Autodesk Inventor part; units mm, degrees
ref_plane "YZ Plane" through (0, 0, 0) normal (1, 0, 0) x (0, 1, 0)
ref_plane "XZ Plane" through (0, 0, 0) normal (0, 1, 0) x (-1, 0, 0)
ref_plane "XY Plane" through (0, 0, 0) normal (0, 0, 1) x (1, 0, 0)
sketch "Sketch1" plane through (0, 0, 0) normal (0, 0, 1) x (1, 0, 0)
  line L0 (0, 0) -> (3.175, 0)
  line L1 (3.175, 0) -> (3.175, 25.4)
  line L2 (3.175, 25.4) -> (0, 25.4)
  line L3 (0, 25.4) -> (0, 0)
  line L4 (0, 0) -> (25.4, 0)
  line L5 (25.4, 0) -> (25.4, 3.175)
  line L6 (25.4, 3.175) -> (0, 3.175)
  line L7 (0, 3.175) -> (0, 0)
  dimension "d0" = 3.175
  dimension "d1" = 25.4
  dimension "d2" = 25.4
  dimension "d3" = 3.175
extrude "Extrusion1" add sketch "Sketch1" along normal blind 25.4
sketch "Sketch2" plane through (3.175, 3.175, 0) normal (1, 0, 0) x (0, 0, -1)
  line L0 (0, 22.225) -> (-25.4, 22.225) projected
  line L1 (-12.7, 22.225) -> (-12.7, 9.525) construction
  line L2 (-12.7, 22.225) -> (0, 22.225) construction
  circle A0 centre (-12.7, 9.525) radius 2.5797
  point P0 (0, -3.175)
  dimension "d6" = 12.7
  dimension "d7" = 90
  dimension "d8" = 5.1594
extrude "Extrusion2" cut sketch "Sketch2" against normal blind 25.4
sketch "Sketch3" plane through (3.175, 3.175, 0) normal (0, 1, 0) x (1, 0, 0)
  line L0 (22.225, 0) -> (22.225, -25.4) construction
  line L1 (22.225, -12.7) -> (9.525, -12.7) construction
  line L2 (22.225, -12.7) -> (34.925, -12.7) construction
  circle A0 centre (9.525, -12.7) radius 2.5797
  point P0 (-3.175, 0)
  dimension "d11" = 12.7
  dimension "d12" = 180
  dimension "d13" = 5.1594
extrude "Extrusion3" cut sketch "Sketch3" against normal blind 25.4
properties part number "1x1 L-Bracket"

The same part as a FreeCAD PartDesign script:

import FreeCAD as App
import Part
import Sketcher

V = App.Vector
Q = App.Units.Quantity


def add_polygon(sketch, points):
    """Adds a closed chain of lines whose ends are joined by coincident constraints."""
    first, n = sketch.GeometryCount, len(points)
    for a, b in zip(points, points[1:] + points[:1]):
        sketch.addGeometry(Part.LineSegment(App.Vector(*a, 0), App.Vector(*b, 0)), False)
    for i in range(n):
        sketch.addConstraint(Sketcher.Constraint("Coincident", first + i, 2, first + (i + 1) % n, 1))

doc = App.newDocument("Part")
body = doc.addObject("PartDesign::Body", "Body")

sketch1 = doc.addObject("Sketcher::SketchObject", "Sketch")
body.addObject(sketch1)
sketch1.AttachmentSupport = (doc.XY_Plane, [""])
sketch1.MapMode = "FlatFace"
add_polygon(sketch1, [(0, 0), (25.4, 0), (25.4, 3.175), (3.175, 3.175), (3.175, 25.4), (0, 25.4)])
sketch1.addConstraint([
    Sketcher.Constraint("Horizontal", 0),
    Sketcher.Constraint("Vertical", 1),
    Sketcher.Constraint("Horizontal", 2),
    Sketcher.Constraint("Vertical", 3),
    Sketcher.Constraint("Horizontal", 4),
    Sketcher.Constraint("Vertical", 5),
    Sketcher.Constraint("Coincident", 5, 2, -1, 1),
    Sketcher.Constraint("Equal", 4, 1),
    Sketcher.Constraint("Equal", 2, 3),
    Sketcher.Constraint("DistanceX", 0, 1, 0, 2, Q("1 in")),
    Sketcher.Constraint("DistanceX", 4, 2, 4, 1, Q("0.125 in")),
])
pad1 = doc.addObject("PartDesign::Pad", "Pad")
body.addObject(pad1)
pad1.Profile = sketch1
pad1.Length = Q("1 in")

sketch2 = doc.addObject("Sketcher::SketchObject", "Sketch001")
body.addObject(sketch2)
sketch2.AttachmentSupport = (doc.YZ_Plane, [""])
sketch2.MapMode = "FlatFace"
sketch2.AttachmentOffset = App.Placement(V(0, 0, 0.125 * 25.4), App.Rotation())
sketch2.addGeometry(Part.Circle(V(12.7, 12.7, 0), V(0, 0, 1), 2.5797), False)
sketch2.addConstraint([
    Sketcher.Constraint("Diameter", 0, Q("0.203126 in")),
    Sketcher.Constraint("DistanceX", -1, 1, 0, 3, Q("0.5 in")),
    Sketcher.Constraint("DistanceY", -1, 1, 0, 3, Q("0.5 in")),
])
pocket1 = doc.addObject("PartDesign::Pocket", "Pocket")
body.addObject(pocket1)
pocket1.Profile = sketch2
pocket1.Length = Q("1 in")

sketch3 = doc.addObject("Sketcher::SketchObject", "Sketch002")
body.addObject(sketch3)
sketch3.AttachmentSupport = (doc.XZ_Plane, [""])
sketch3.MapMode = "FlatFace"
sketch3.AttachmentOffset = App.Placement(V(0, 0, -0.125 * 25.4), App.Rotation())
sketch3.addGeometry(Part.Circle(V(12.7, 12.7, 0), V(0, 0, 1), 2.5797), False)
sketch3.addConstraint([
    Sketcher.Constraint("Diameter", 0, Q("0.203126 in")),
    Sketcher.Constraint("DistanceX", -1, 1, 0, 3, Q("0.5 in")),
    Sketcher.Constraint("DistanceY", -1, 1, 0, 3, Q("0.5 in")),
])
pocket2 = doc.addObject("PartDesign::Pocket", "Pocket001")
body.addObject(pocket2)
pocket2.Profile = sketch3
pocket2.Length = Q("1 in")
pocket2.Reversed = True

doc.recompute()
